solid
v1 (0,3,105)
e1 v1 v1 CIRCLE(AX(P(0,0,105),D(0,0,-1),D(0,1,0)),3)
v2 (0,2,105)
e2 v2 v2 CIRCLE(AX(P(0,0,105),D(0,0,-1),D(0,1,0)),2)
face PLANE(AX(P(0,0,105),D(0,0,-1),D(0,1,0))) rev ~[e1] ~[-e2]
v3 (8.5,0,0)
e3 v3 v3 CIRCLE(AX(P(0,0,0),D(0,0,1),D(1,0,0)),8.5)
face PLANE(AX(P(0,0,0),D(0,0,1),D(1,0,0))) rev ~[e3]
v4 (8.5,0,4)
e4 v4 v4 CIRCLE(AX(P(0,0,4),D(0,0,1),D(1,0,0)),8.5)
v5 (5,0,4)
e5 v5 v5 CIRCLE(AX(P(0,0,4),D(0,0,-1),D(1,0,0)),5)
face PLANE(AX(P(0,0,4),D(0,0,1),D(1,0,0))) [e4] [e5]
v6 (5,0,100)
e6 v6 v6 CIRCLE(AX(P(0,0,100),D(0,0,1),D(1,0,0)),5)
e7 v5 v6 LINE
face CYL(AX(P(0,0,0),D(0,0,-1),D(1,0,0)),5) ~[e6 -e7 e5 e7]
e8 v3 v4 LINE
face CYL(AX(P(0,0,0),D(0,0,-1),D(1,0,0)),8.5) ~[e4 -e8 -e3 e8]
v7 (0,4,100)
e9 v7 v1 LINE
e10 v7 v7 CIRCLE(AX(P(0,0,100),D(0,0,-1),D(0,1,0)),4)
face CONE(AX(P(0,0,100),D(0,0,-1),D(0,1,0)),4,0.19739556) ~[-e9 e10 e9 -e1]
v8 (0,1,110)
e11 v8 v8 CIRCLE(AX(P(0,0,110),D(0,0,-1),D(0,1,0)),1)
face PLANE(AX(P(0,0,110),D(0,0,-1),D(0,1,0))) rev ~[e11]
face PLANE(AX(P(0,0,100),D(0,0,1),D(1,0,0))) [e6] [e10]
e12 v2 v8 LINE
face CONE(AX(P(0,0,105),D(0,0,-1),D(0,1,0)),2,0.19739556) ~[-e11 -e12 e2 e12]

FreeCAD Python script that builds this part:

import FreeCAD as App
import Part
import Sketcher
from FreeCAD import Vector


def add_polygon(sketch, points):
    """Adds a closed chain of lines whose ends are joined by coincident constraints."""
    first, n = sketch.GeometryCount, len(points)
    for a, b in zip(points, points[1:] + points[:1]):
        sketch.addGeometry(Part.LineSegment(App.Vector(*a, 0), App.Vector(*b, 0)), False)
    for i in range(n):
        sketch.addConstraint(Sketcher.Constraint("Coincident", first + i, 2, first + (i + 1) % n, 1))

doc = App.newDocument("Part")
body = doc.addObject("PartDesign::Body", "Body")

sketch1 = body.newObject("Sketcher::SketchObject", "Sketch")
sketch1.AttachmentSupport = (doc.getObject("XY_Plane"), [""])
sketch1.MapMode = "FlatFace"
sketch1.addGeometry(Part.Circle(Vector(0, 0, 0), Vector(0, 0, 1), 8), False)
sketch1.addConstraint([
    Sketcher.Constraint("Coincident", 0, 3, -1, 1),
    Sketcher.Constraint("Diameter", 0, 17.0),
])
pad1 = body.newObject("PartDesign::Pad", "Pad")
pad1.Profile = sketch1
pad1.Length = 4

sketch2 = body.newObject("Sketcher::SketchObject", "Sketch001")
sketch2.AttachmentSupport = (doc.getObject("XY_Plane"), [""])
sketch2.MapMode = "FlatFace"
sketch2.addGeometry(Part.Circle(Vector(0, 0, 0), Vector(0, 0, 1), 5), False)
sketch2.addConstraint([
    Sketcher.Constraint("Coincident", 0, 3, -1, 1),
    Sketcher.Constraint("Diameter", 0, 10.0),
])
pad2 = body.newObject("PartDesign::Pad", "Pad001")
pad2.Profile = sketch2
pad2.Length = 100

sketch3 = body.newObject("Sketcher::SketchObject", "Sketch002")
sketch3.AttachmentSupport = (doc.getObject("YZ_Plane"), [""])
sketch3.MapMode = "FlatFace"
add_polygon(sketch3, [(3, 105), (0, 105), (0, 100), (4, 100)])
sketch3.addConstraint([
    Sketcher.Constraint("Horizontal", 0),
    Sketcher.Constraint("Vertical", 1),
    Sketcher.Constraint("Horizontal", 2),
    Sketcher.Constraint("PointOnObject", 0, 2, -2),
    Sketcher.Constraint("DistanceX", 0, 2, 0, 1, 3.0),
    Sketcher.Constraint("DistanceX", 2, 1, 2, 2, 4.0),
    Sketcher.Constraint("DistanceY", 1, 2, 1, 1, 5.0),
    Sketcher.Constraint("DistanceY", -1, 1, 0, 2, 105.0),
])
revolution = body.newObject("PartDesign::Revolution", "Revolution")
revolution.Profile = sketch3
revolution.ReferenceAxis = (sketch3, ["V_Axis"])
revolution.Angle = 360

sketch4 = body.newObject("Sketcher::SketchObject", "Sketch003")
sketch4.AttachmentSupport = (doc.getObject("YZ_Plane"), [""])
sketch4.MapMode = "FlatFace"
add_polygon(sketch4, [(1, 110), (0, 110), (0, 105), (2, 105)])
sketch4.addConstraint([
    Sketcher.Constraint("Horizontal", 0),
    Sketcher.Constraint("Vertical", 1),
    Sketcher.Constraint("Horizontal", 2),
    Sketcher.Constraint("PointOnObject", 0, 2, -2),
    Sketcher.Constraint("DistanceX", 0, 2, 0, 1, 1.0),
    Sketcher.Constraint("DistanceX", 2, 1, 2, 2, 2.0),
    Sketcher.Constraint("DistanceY", 1, 2, 1, 1, 5.0),
    Sketcher.Constraint("DistanceY", -1, 1, 0, 2, 110.0),
])
revolution2 = body.newObject("PartDesign::Revolution", "Revolution001")
revolution2.Profile = sketch4
revolution2.ReferenceAxis = (sketch4, ["V_Axis"])
revolution2.Angle = 360

doc.recompute()
